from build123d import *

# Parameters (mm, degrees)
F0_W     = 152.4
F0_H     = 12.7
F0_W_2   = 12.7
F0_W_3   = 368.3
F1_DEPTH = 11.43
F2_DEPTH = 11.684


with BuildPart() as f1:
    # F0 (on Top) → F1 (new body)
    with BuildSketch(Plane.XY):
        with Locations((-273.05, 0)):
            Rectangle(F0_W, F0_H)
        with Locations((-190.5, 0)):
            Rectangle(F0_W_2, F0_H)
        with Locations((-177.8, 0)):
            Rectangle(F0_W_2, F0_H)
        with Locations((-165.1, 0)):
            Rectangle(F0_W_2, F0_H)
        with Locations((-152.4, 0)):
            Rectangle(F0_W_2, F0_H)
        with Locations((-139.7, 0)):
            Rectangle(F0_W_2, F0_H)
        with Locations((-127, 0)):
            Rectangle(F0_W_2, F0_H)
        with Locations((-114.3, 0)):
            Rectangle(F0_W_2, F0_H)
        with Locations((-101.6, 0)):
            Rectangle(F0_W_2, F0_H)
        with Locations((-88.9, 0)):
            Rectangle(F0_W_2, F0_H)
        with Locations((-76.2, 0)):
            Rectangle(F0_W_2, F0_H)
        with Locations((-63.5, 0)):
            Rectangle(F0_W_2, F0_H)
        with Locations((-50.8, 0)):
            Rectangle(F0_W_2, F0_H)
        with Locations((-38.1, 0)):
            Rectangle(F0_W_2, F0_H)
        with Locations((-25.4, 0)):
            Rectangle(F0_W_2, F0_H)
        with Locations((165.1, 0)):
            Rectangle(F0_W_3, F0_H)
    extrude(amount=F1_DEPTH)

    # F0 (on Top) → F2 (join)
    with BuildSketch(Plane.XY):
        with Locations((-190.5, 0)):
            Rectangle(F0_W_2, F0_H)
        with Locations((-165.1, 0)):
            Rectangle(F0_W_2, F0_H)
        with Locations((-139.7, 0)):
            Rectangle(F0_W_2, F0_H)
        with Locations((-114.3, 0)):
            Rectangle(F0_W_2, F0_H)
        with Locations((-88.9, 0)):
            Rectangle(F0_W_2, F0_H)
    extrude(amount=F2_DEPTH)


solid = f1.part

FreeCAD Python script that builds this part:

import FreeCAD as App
import Part
import Sketcher
Q = App.Units.Quantity

doc = App.newDocument("Part")
body = doc.addObject("PartDesign::Body", "Body")

# Sketch on XY plane
sketch1 = body.newObject("Sketcher::SketchObject", "Sketch")
sketch1.AttachmentSupport = (doc.getObject("XY_Plane"), [""])
sketch1.MapMode = "FlatFace"
sketch1.addGeometry([
    Part.LineSegment(App.Vector(-349, 6, 0), App.Vector(-349, -6, 0)),
    Part.LineSegment(App.Vector(-349, -6, 0), App.Vector(349, -6, 0)),
    Part.LineSegment(App.Vector(349, -6, 0), App.Vector(349, 6, 0)),
    Part.LineSegment(App.Vector(349, 6, 0), App.Vector(-349, 6, 0)),
], False)
sketch1.addConstraint([
    Sketcher.Constraint("Coincident", 0, 2, 1, 1),
    Sketcher.Constraint("Coincident", 1, 2, 2, 1),
    Sketcher.Constraint("Coincident", 2, 2, 3, 1),
    Sketcher.Constraint("Coincident", 3, 2, 0, 1),
    Sketcher.Constraint("Vertical", 0),
    Sketcher.Constraint("Horizontal", 1),
    Sketcher.Constraint("Vertical", 2),
    Sketcher.Constraint("Horizontal", 3),
    Sketcher.Constraint("Symmetric", 0, 2, 2, 2, -1, 1),
    Sketcher.Constraint("DistanceX", 1, 1, 1, 2, Q("27.5 in")),
    Sketcher.Constraint("DistanceY", 0, 2, 0, 1, Q("0.5 in")),
])
pad1 = body.newObject("PartDesign::Pad", "Pad")
pad1.Profile = sketch1
pad1.Length = Q("0.45 in")

# Sketch on XY plane
sketch2 = body.newObject("Sketcher::SketchObject", "Sketch001")
sketch2.AttachmentSupport = (doc.getObject("XY_Plane"), [""])
sketch2.MapMode = "FlatFace"
sketch2.addGeometry([
    Part.LineSegment(App.Vector(-197, 6, 0), App.Vector(-197, -6, 0)),  # 0
    Part.LineSegment(App.Vector(-197, -6, 0), App.Vector(-184, -6, 0)),  # 1
    Part.LineSegment(App.Vector(-184, -6, 0), App.Vector(-184, 6, 0)),  # 2
    Part.LineSegment(App.Vector(-184, 6, 0), App.Vector(-197, 6, 0)),  # 3
    Part.LineSegment(App.Vector(-171, 6, 0), App.Vector(-171, -6, 0)),  # 4
    Part.LineSegment(App.Vector(-171, -6, 0), App.Vector(-159, -6, 0)),  # 5
    Part.LineSegment(App.Vector(-159, -6, 0), App.Vector(-159, 6, 0)),  # 6
    Part.LineSegment(App.Vector(-159, 6, 0), App.Vector(-171, 6, 0)),  # 7
    Part.LineSegment(App.Vector(-146, 6, 0), App.Vector(-146, -6, 0)),  # 8
    Part.LineSegment(App.Vector(-146, -6, 0), App.Vector(-133, -6, 0)),  # 9
    Part.LineSegment(App.Vector(-133, -6, 0), App.Vector(-133, 6, 0)),  # 10
    Part.LineSegment(App.Vector(-133, 6, 0), App.Vector(-146, 6, 0)),  # 11
    Part.LineSegment(App.Vector(-121, 6, 0), App.Vector(-121, -6, 0)),  # 12
    Part.LineSegment(App.Vector(-121, -6, 0), App.Vector(-108, -6, 0)),  # 13
    Part.LineSegment(App.Vector(-108, -6, 0), App.Vector(-108, 6, 0)),  # 14
    Part.LineSegment(App.Vector(-108, 6, 0), App.Vector(-121, 6, 0)),  # 15
    Part.LineSegment(App.Vector(-95, 6, 0), App.Vector(-95, -6, 0)),  # 16
    Part.LineSegment(App.Vector(-95, -6, 0), App.Vector(-83, -6, 0)),  # 17
    Part.LineSegment(App.Vector(-83, -6, 0), App.Vector(-83, 6, 0)),  # 18
    Part.LineSegment(App.Vector(-83, 6, 0), App.Vector(-95, 6, 0)),  # 19
], False)
sketch2.addConstraint([
    Sketcher.Constraint("Coincident", 0, 2, 1, 1),
    Sketcher.Constraint("Coincident", 1, 2, 2, 1),
    Sketcher.Constraint("Coincident", 2, 2, 3, 1),
    Sketcher.Constraint("Coincident", 3, 2, 0, 1),
    Sketcher.Constraint("Coincident", 4, 2, 5, 1),
    Sketcher.Constraint("Coincident", 5, 2, 6, 1),
    Sketcher.Constraint("Coincident", 6, 2, 7, 1),
    Sketcher.Constraint("Coincident", 7, 2, 4, 1),
    Sketcher.Constraint("Coincident", 8, 2, 9, 1),
    Sketcher.Constraint("Coincident", 9, 2, 10, 1),
    Sketcher.Constraint("Coincident", 10, 2, 11, 1),
    Sketcher.Constraint("Coincident", 11, 2, 8, 1),
    Sketcher.Constraint("Coincident", 12, 2, 13, 1),
    Sketcher.Constraint("Coincident", 13, 2, 14, 1),
    Sketcher.Constraint("Coincident", 14, 2, 15, 1),
    Sketcher.Constraint("Coincident", 15, 2, 12, 1),
    Sketcher.Constraint("Coincident", 16, 2, 17, 1),
    Sketcher.Constraint("Coincident", 17, 2, 18, 1),
    Sketcher.Constraint("Coincident", 18, 2, 19, 1),
    Sketcher.Constraint("Coincident", 19, 2, 16, 1),
    Sketcher.Constraint("Vertical", 0),
    Sketcher.Constraint("Horizontal", 1),
    Sketcher.Constraint("Vertical", 2),
    Sketcher.Constraint("Horizontal", 3),
    Sketcher.Constraint("Vertical", 4),
    Sketcher.Constraint("Horizontal", 5),
    Sketcher.Constraint("Vertical", 6),
    Sketcher.Constraint("Horizontal", 7),
    Sketcher.Constraint("Vertical", 8),
    Sketcher.Constraint("Horizontal", 9),
    Sketcher.Constraint("Vertical", 10),
    Sketcher.Constraint("Horizontal", 11),
    Sketcher.Constraint("Vertical", 12),
    Sketcher.Constraint("Horizontal", 13),
    Sketcher.Constraint("Vertical", 14),
    Sketcher.Constraint("Horizontal", 15),
    Sketcher.Constraint("Vertical", 16),
    Sketcher.Constraint("Horizontal", 17),
    Sketcher.Constraint("Vertical", 18),
    Sketcher.Constraint("Horizontal", 19),
    Sketcher.Constraint("Horizontal", 1, 2, 4, 2),
    Sketcher.Constraint("Horizontal", 3, 2, 6, 2),
    Sketcher.Constraint("Horizontal", 5, 2, 8, 2),
    Sketcher.Constraint("Horizontal", 7, 2, 10, 2),
    Sketcher.Constraint("Horizontal", 9, 2, 12, 2),
    Sketcher.Constraint("Horizontal", 11, 2, 14, 2),
    Sketcher.Constraint("Horizontal", 13, 2, 16, 2),
    Sketcher.Constraint("Horizontal", 15, 2, 18, 2),
    Sketcher.Constraint("Equal", 3, 5),
    Sketcher.Constraint("Equal", 7, 9),
    Sketcher.Constraint("Equal", 11, 13),
    Sketcher.Constraint("Equal", 15, 17),
    Sketcher.Constraint("Equal", 19, 0),
    Sketcher.Constraint("DistanceX", 1, 1, 1, 2, Q("0.5 in")),
    Sketcher.Constraint("DistanceX", 0, 2, 4, 2, Q("1 in")),
    Sketcher.Constraint("DistanceX", 4, 2, 8, 2, Q("1 in")),
    Sketcher.Constraint("DistanceX", 8, 2, 12, 2, Q("1 in")),
    Sketcher.Constraint("DistanceX", 12, 2, 16, 2, Q("1 in")),
    Sketcher.Constraint("DistanceX", 0, 2, -1, 1, Q("7.75 in")),
    Sketcher.Constraint("DistanceY", 0, 2, -1, 1, Q("0.25 in")),
])
pad2 = body.newObject("PartDesign::Pad", "Pad001")
pad2.Profile = sketch2
pad2.Length = Q("0.46 in")

doc.recompute()
